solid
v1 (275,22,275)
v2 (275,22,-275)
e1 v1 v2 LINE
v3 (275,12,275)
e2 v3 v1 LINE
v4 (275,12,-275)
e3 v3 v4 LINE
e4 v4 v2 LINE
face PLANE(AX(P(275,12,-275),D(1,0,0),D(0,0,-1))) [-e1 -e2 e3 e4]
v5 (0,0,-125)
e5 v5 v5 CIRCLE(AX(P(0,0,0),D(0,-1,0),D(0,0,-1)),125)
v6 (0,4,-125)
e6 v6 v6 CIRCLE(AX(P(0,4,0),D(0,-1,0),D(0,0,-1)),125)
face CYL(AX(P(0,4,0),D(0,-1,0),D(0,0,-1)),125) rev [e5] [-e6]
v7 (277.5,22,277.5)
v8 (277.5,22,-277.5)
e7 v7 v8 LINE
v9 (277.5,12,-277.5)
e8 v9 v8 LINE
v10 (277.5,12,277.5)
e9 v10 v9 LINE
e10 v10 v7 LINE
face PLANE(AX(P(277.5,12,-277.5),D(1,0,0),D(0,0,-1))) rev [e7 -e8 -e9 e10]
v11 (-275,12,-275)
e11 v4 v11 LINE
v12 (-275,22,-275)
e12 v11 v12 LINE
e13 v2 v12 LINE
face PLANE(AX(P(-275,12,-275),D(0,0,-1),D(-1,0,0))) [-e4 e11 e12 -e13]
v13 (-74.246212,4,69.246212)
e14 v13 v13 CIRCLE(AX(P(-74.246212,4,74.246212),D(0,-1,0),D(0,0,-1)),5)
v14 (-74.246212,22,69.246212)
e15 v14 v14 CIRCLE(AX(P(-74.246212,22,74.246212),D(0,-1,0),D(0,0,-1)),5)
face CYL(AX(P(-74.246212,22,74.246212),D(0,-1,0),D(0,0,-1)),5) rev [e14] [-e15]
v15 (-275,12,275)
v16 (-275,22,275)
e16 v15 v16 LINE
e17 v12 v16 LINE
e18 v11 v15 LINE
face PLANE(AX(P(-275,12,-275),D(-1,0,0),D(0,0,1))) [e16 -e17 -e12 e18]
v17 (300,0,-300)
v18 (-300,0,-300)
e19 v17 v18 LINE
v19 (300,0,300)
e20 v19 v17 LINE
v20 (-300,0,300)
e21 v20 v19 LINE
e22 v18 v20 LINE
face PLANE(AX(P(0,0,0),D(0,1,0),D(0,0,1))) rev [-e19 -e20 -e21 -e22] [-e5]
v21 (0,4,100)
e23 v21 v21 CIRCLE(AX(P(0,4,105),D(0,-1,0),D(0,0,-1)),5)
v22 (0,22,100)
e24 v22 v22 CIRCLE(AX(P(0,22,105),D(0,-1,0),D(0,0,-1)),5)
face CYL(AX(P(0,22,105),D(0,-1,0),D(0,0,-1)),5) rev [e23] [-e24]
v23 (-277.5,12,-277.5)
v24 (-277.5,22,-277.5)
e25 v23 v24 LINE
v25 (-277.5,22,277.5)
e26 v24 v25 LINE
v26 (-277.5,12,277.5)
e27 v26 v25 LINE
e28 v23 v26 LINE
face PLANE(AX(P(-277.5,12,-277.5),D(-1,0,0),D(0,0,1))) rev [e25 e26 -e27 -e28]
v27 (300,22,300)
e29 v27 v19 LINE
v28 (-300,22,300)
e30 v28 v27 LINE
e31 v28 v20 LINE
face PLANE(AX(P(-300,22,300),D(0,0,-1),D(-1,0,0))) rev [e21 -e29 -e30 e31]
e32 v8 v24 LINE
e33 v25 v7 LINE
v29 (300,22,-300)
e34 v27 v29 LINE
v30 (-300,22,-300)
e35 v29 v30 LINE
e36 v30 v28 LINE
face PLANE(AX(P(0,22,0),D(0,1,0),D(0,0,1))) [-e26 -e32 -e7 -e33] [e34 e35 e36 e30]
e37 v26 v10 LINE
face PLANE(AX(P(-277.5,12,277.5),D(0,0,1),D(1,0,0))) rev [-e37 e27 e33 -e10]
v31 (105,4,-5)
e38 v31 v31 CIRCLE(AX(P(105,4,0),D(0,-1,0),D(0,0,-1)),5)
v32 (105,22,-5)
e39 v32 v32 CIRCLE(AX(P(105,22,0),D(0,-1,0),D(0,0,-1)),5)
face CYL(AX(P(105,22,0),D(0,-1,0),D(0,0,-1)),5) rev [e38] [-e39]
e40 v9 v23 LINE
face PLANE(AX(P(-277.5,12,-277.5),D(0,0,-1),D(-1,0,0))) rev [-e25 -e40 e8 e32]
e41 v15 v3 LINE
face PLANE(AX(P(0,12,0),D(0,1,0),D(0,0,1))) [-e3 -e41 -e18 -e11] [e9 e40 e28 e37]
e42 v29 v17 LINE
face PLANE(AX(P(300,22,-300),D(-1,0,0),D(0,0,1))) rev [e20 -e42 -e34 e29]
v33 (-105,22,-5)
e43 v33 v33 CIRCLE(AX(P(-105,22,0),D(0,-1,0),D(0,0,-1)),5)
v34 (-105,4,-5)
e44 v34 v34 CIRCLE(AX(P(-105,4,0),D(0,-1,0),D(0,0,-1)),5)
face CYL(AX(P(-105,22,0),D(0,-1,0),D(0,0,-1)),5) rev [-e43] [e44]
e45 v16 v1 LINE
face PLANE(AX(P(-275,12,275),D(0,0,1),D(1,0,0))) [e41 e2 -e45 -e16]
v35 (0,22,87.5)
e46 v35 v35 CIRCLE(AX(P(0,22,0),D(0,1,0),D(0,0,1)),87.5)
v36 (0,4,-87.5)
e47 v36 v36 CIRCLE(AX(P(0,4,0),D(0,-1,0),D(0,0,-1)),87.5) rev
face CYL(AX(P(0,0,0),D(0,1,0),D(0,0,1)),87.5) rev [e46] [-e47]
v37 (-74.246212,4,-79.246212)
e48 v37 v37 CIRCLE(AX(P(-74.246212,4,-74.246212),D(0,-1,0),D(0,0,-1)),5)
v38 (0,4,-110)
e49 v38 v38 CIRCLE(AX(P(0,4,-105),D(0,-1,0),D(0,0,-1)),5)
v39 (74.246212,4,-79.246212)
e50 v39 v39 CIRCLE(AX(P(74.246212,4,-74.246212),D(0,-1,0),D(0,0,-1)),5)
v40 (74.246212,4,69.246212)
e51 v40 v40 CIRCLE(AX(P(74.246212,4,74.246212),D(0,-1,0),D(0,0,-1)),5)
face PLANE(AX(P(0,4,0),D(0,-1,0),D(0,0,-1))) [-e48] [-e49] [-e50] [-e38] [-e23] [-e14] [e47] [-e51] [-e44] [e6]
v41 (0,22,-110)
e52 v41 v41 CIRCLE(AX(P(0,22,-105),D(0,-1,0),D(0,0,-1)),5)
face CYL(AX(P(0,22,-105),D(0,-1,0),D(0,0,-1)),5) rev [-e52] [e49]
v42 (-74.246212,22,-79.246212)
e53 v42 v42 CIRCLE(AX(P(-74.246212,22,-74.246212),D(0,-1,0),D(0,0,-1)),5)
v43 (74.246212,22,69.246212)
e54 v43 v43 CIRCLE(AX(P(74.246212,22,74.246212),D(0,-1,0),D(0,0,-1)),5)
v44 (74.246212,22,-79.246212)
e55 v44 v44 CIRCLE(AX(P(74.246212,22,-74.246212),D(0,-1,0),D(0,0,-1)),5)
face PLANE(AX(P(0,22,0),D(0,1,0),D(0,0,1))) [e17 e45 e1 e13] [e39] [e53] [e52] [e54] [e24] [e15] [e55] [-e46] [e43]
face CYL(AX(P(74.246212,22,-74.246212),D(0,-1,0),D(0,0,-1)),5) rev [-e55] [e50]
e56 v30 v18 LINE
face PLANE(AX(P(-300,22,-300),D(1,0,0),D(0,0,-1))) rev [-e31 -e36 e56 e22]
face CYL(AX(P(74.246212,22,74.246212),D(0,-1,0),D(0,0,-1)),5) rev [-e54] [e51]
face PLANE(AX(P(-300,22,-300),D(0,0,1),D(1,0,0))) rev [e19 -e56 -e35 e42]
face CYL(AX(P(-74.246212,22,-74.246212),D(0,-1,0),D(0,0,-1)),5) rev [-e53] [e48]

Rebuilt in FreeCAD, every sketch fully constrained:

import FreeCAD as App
import Part
import Sketcher
from FreeCAD import Vector


def add_polygon(sketch, points):
    """Adds a closed chain of lines whose ends are joined by coincident constraints."""
    first, n = sketch.GeometryCount, len(points)
    for a, b in zip(points, points[1:] + points[:1]):
        sketch.addGeometry(Part.LineSegment(App.Vector(*a, 0), App.Vector(*b, 0)), False)
    for i in range(n):
        sketch.addConstraint(Sketcher.Constraint("Coincident", first + i, 2, first + (i + 1) % n, 1))

doc = App.newDocument("Part")
body = doc.addObject("PartDesign::Body", "Body")

# Sketch on XZ plane
sketch1 = doc.addObject("Sketcher::SketchObject", "Sketch")
body.addObject(sketch1)
sketch1.AttachmentSupport = (doc.XZ_Plane, [""])
sketch1.MapMode = "FlatFace"
add_polygon(sketch1, [(-300, -300), (-300, 300), (300, 300), (300, -300)])  # lines 0-3
sketch1.addConstraint(Sketcher.Constraint("Vertical", 0))
sketch1.addConstraint(Sketcher.Constraint("Horizontal", 1))
sketch1.addConstraint(Sketcher.Constraint("Vertical", 2))
sketch1.addConstraint(Sketcher.Constraint("Horizontal", 3))
sketch1.addConstraint(Sketcher.Constraint("Symmetric", 0, 2, 2, 2, -1, 1))
sketch1.addConstraint(Sketcher.Constraint("Equal", 3, 0))
sketch1.addConstraint(Sketcher.Constraint("DistanceX", 1, 1, 1, 2, 600.0))
pad1 = doc.addObject("PartDesign::Pad", "Pad")
body.addObject(pad1)
pad1.Profile = sketch1
pad1.Length = 22
pad1.Reversed = True

# Sketch on XZ plane
sketch2 = doc.addObject("Sketcher::SketchObject", "Sketch001")
body.addObject(sketch2)
sketch2.AttachmentSupport = (doc.XZ_Plane, [""])
sketch2.MapMode = "FlatFace"
sketch2.AttachmentOffset = App.Placement(Vector(0, 0, -22), App.Rotation())
sketch2.addGeometry(Part.Circle(Vector(0, 0, 0), Vector(0, 0, 1), 88), False)
sketch2.addConstraint(Sketcher.Constraint("Coincident", 0, 3, -1, 1))
sketch2.addConstraint(Sketcher.Constraint("Diameter", 0, 175.0))
pocket1 = doc.addObject("PartDesign::Pocket", "Pocket")
body.addObject(pocket1)
pocket1.Profile = sketch2
pocket1.Type = "ThroughAll"
pocket1.Reversed = True

# Sketch on XZ plane
sketch3 = doc.addObject("Sketcher::SketchObject", "Sketch002")
body.addObject(sketch3)
sketch3.AttachmentSupport = (doc.XZ_Plane, [""])
sketch3.MapMode = "FlatFace"
sketch3.AttachmentOffset = App.Placement(Vector(0, 0, -22), App.Rotation())
add_polygon(sketch3, [(-278, -278), (-278, 278), (278, 278), (278, -278)])  # lines 0-3
add_polygon(sketch3, [(275, 275), (-275, 275), (-275, -275), (275, -275)])  # lines 4-7
sketch3.addConstraint(Sketcher.Constraint("Vertical", 0))
sketch3.addConstraint(Sketcher.Constraint("Horizontal", 1))
sketch3.addConstraint(Sketcher.Constraint("Vertical", 2))
sketch3.addConstraint(Sketcher.Constraint("Horizontal", 3))
sketch3.addConstraint(Sketcher.Constraint("Horizontal", 4))
sketch3.addConstraint(Sketcher.Constraint("Vertical", 5))
sketch3.addConstraint(Sketcher.Constraint("Horizontal", 6))
sketch3.addConstraint(Sketcher.Constraint("Vertical", 7))
sketch3.addConstraint(Sketcher.Constraint("Symmetric", 0, 2, 2, 2, -1, 1))
sketch3.addConstraint(Sketcher.Constraint("Symmetric", 4, 2, 6, 2, -1, 1))
sketch3.addConstraint(Sketcher.Constraint("Equal", 3, 0))
sketch3.addConstraint(Sketcher.Constraint("Equal", 6, 5))
sketch3.addConstraint(Sketcher.Constraint("DistanceX", 1, 1, 1, 2, 555.0))
sketch3.addConstraint(Sketcher.Constraint("DistanceX", 4, 2, 4, 1, 550.0))
pocket2 = doc.addObject("PartDesign::Pocket", "Pocket001")
body.addObject(pocket2)
pocket2.Profile = sketch3
pocket2.Length = 10
pocket2.Reversed = True

# Sketch on XZ plane
sketch4 = doc.addObject("Sketcher::SketchObject", "Sketch003")
body.addObject(sketch4)
sketch4.AttachmentSupport = (doc.XZ_Plane, [""])
sketch4.MapMode = "FlatFace"
sketch4.addGeometry(Part.Circle(Vector(0, 0, 0), Vector(0, 0, 1), 125), False)
sketch4.addConstraint(Sketcher.Constraint("Coincident", 0, 3, -1, 1))
sketch4.addConstraint(Sketcher.Constraint("Diameter", 0, 250.0))
pocket3 = doc.addObject("PartDesign::Pocket", "Pocket002")
body.addObject(pocket3)
pocket3.Profile = sketch4
pocket3.Length = 4

# Sketch on XZ plane
sketch5 = doc.addObject("Sketcher::SketchObject", "Sketch004")
body.addObject(sketch5)
sketch5.AttachmentSupport = (doc.XZ_Plane, [""])
sketch5.MapMode = "FlatFace"
sketch5.AttachmentOffset = App.Placement(Vector(0, 0, -4), App.Rotation())
sketch5.addGeometry(Part.Circle(Vector(0, 105, 0), Vector(0, 0, 1), 5), False)
sketch5.addGeometry(Part.Circle(Vector(74, 74, 0), Vector(0, 0, 1), 5), False)
sketch5.addGeometry(Part.Circle(Vector(105, 0, 0), Vector(0, 0, 1), 5), False)
sketch5.addGeometry(Part.Circle(Vector(74, -74, 0), Vector(0, 0, 1), 5), False)
sketch5.addGeometry(Part.Circle(Vector(0, -105, 0), Vector(0, 0, 1), 5), False)
sketch5.addGeometry(Part.Circle(Vector(-74, -74, 0), Vector(0, 0, 1), 5), False)
sketch5.addGeometry(Part.Circle(Vector(-105, 0, 0), Vector(0, 0, 1), 5), False)
sketch5.addGeometry(Part.Circle(Vector(-74, 74, 0), Vector(0, 0, 1), 5), False)
sketch5.addConstraint(Sketcher.Constraint("Equal", 0, 1))
sketch5.addConstraint(Sketcher.Constraint("Equal", 1, 2))
sketch5.addConstraint(Sketcher.Constraint("Equal", 2, 3))
sketch5.addConstraint(Sketcher.Constraint("Equal", 3, 4))
sketch5.addConstraint(Sketcher.Constraint("Equal", 4, 5))
sketch5.addConstraint(Sketcher.Constraint("Equal", 5, 6))
sketch5.addConstraint(Sketcher.Constraint("Equal", 6, 7))
sketch5.addConstraint(Sketcher.Constraint("Symmetric", 0, 3, 4, 3, -1, 1))
sketch5.addConstraint(Sketcher.Constraint("Symmetric", 1, 3, 5, 3, -1, 1))
sketch5.addConstraint(Sketcher.Constraint("Symmetric", 2, 3, 6, 3, -1, 1))
sketch5.addConstraint(Sketcher.Constraint("Symmetric", 3, 3, 7, 3, -1, 1))
sketch5.addConstraint(Sketcher.Constraint("Symmetric", 3, 3, 5, 3, -2))
sketch5.addConstraint(Sketcher.Constraint("PointOnObject", 0, 3, -2))
sketch5.addConstraint(Sketcher.Constraint("PointOnObject", 2, 3, -1))
sketch5.addConstraint(Sketcher.Constraint("Diameter", 0, 10.0))
sketch5.addConstraint(Sketcher.Constraint("DistanceY", -1, 1, 0, 3, 105.0))
sketch5.addConstraint(Sketcher.Constraint("DistanceX", -1, 1, 2, 3, 105.0))
sketch5.addConstraint(Sketcher.Constraint("DistanceX", -1, 1, 1, 3, 74.246212))
sketch5.addConstraint(Sketcher.Constraint("DistanceY", -1, 1, 1, 3, 74.246212))
pocket4 = doc.addObject("PartDesign::Pocket", "Pocket003")
body.addObject(pocket4)
pocket4.Profile = sketch5
pocket4.Type = "ThroughAll"

doc.recompute()
